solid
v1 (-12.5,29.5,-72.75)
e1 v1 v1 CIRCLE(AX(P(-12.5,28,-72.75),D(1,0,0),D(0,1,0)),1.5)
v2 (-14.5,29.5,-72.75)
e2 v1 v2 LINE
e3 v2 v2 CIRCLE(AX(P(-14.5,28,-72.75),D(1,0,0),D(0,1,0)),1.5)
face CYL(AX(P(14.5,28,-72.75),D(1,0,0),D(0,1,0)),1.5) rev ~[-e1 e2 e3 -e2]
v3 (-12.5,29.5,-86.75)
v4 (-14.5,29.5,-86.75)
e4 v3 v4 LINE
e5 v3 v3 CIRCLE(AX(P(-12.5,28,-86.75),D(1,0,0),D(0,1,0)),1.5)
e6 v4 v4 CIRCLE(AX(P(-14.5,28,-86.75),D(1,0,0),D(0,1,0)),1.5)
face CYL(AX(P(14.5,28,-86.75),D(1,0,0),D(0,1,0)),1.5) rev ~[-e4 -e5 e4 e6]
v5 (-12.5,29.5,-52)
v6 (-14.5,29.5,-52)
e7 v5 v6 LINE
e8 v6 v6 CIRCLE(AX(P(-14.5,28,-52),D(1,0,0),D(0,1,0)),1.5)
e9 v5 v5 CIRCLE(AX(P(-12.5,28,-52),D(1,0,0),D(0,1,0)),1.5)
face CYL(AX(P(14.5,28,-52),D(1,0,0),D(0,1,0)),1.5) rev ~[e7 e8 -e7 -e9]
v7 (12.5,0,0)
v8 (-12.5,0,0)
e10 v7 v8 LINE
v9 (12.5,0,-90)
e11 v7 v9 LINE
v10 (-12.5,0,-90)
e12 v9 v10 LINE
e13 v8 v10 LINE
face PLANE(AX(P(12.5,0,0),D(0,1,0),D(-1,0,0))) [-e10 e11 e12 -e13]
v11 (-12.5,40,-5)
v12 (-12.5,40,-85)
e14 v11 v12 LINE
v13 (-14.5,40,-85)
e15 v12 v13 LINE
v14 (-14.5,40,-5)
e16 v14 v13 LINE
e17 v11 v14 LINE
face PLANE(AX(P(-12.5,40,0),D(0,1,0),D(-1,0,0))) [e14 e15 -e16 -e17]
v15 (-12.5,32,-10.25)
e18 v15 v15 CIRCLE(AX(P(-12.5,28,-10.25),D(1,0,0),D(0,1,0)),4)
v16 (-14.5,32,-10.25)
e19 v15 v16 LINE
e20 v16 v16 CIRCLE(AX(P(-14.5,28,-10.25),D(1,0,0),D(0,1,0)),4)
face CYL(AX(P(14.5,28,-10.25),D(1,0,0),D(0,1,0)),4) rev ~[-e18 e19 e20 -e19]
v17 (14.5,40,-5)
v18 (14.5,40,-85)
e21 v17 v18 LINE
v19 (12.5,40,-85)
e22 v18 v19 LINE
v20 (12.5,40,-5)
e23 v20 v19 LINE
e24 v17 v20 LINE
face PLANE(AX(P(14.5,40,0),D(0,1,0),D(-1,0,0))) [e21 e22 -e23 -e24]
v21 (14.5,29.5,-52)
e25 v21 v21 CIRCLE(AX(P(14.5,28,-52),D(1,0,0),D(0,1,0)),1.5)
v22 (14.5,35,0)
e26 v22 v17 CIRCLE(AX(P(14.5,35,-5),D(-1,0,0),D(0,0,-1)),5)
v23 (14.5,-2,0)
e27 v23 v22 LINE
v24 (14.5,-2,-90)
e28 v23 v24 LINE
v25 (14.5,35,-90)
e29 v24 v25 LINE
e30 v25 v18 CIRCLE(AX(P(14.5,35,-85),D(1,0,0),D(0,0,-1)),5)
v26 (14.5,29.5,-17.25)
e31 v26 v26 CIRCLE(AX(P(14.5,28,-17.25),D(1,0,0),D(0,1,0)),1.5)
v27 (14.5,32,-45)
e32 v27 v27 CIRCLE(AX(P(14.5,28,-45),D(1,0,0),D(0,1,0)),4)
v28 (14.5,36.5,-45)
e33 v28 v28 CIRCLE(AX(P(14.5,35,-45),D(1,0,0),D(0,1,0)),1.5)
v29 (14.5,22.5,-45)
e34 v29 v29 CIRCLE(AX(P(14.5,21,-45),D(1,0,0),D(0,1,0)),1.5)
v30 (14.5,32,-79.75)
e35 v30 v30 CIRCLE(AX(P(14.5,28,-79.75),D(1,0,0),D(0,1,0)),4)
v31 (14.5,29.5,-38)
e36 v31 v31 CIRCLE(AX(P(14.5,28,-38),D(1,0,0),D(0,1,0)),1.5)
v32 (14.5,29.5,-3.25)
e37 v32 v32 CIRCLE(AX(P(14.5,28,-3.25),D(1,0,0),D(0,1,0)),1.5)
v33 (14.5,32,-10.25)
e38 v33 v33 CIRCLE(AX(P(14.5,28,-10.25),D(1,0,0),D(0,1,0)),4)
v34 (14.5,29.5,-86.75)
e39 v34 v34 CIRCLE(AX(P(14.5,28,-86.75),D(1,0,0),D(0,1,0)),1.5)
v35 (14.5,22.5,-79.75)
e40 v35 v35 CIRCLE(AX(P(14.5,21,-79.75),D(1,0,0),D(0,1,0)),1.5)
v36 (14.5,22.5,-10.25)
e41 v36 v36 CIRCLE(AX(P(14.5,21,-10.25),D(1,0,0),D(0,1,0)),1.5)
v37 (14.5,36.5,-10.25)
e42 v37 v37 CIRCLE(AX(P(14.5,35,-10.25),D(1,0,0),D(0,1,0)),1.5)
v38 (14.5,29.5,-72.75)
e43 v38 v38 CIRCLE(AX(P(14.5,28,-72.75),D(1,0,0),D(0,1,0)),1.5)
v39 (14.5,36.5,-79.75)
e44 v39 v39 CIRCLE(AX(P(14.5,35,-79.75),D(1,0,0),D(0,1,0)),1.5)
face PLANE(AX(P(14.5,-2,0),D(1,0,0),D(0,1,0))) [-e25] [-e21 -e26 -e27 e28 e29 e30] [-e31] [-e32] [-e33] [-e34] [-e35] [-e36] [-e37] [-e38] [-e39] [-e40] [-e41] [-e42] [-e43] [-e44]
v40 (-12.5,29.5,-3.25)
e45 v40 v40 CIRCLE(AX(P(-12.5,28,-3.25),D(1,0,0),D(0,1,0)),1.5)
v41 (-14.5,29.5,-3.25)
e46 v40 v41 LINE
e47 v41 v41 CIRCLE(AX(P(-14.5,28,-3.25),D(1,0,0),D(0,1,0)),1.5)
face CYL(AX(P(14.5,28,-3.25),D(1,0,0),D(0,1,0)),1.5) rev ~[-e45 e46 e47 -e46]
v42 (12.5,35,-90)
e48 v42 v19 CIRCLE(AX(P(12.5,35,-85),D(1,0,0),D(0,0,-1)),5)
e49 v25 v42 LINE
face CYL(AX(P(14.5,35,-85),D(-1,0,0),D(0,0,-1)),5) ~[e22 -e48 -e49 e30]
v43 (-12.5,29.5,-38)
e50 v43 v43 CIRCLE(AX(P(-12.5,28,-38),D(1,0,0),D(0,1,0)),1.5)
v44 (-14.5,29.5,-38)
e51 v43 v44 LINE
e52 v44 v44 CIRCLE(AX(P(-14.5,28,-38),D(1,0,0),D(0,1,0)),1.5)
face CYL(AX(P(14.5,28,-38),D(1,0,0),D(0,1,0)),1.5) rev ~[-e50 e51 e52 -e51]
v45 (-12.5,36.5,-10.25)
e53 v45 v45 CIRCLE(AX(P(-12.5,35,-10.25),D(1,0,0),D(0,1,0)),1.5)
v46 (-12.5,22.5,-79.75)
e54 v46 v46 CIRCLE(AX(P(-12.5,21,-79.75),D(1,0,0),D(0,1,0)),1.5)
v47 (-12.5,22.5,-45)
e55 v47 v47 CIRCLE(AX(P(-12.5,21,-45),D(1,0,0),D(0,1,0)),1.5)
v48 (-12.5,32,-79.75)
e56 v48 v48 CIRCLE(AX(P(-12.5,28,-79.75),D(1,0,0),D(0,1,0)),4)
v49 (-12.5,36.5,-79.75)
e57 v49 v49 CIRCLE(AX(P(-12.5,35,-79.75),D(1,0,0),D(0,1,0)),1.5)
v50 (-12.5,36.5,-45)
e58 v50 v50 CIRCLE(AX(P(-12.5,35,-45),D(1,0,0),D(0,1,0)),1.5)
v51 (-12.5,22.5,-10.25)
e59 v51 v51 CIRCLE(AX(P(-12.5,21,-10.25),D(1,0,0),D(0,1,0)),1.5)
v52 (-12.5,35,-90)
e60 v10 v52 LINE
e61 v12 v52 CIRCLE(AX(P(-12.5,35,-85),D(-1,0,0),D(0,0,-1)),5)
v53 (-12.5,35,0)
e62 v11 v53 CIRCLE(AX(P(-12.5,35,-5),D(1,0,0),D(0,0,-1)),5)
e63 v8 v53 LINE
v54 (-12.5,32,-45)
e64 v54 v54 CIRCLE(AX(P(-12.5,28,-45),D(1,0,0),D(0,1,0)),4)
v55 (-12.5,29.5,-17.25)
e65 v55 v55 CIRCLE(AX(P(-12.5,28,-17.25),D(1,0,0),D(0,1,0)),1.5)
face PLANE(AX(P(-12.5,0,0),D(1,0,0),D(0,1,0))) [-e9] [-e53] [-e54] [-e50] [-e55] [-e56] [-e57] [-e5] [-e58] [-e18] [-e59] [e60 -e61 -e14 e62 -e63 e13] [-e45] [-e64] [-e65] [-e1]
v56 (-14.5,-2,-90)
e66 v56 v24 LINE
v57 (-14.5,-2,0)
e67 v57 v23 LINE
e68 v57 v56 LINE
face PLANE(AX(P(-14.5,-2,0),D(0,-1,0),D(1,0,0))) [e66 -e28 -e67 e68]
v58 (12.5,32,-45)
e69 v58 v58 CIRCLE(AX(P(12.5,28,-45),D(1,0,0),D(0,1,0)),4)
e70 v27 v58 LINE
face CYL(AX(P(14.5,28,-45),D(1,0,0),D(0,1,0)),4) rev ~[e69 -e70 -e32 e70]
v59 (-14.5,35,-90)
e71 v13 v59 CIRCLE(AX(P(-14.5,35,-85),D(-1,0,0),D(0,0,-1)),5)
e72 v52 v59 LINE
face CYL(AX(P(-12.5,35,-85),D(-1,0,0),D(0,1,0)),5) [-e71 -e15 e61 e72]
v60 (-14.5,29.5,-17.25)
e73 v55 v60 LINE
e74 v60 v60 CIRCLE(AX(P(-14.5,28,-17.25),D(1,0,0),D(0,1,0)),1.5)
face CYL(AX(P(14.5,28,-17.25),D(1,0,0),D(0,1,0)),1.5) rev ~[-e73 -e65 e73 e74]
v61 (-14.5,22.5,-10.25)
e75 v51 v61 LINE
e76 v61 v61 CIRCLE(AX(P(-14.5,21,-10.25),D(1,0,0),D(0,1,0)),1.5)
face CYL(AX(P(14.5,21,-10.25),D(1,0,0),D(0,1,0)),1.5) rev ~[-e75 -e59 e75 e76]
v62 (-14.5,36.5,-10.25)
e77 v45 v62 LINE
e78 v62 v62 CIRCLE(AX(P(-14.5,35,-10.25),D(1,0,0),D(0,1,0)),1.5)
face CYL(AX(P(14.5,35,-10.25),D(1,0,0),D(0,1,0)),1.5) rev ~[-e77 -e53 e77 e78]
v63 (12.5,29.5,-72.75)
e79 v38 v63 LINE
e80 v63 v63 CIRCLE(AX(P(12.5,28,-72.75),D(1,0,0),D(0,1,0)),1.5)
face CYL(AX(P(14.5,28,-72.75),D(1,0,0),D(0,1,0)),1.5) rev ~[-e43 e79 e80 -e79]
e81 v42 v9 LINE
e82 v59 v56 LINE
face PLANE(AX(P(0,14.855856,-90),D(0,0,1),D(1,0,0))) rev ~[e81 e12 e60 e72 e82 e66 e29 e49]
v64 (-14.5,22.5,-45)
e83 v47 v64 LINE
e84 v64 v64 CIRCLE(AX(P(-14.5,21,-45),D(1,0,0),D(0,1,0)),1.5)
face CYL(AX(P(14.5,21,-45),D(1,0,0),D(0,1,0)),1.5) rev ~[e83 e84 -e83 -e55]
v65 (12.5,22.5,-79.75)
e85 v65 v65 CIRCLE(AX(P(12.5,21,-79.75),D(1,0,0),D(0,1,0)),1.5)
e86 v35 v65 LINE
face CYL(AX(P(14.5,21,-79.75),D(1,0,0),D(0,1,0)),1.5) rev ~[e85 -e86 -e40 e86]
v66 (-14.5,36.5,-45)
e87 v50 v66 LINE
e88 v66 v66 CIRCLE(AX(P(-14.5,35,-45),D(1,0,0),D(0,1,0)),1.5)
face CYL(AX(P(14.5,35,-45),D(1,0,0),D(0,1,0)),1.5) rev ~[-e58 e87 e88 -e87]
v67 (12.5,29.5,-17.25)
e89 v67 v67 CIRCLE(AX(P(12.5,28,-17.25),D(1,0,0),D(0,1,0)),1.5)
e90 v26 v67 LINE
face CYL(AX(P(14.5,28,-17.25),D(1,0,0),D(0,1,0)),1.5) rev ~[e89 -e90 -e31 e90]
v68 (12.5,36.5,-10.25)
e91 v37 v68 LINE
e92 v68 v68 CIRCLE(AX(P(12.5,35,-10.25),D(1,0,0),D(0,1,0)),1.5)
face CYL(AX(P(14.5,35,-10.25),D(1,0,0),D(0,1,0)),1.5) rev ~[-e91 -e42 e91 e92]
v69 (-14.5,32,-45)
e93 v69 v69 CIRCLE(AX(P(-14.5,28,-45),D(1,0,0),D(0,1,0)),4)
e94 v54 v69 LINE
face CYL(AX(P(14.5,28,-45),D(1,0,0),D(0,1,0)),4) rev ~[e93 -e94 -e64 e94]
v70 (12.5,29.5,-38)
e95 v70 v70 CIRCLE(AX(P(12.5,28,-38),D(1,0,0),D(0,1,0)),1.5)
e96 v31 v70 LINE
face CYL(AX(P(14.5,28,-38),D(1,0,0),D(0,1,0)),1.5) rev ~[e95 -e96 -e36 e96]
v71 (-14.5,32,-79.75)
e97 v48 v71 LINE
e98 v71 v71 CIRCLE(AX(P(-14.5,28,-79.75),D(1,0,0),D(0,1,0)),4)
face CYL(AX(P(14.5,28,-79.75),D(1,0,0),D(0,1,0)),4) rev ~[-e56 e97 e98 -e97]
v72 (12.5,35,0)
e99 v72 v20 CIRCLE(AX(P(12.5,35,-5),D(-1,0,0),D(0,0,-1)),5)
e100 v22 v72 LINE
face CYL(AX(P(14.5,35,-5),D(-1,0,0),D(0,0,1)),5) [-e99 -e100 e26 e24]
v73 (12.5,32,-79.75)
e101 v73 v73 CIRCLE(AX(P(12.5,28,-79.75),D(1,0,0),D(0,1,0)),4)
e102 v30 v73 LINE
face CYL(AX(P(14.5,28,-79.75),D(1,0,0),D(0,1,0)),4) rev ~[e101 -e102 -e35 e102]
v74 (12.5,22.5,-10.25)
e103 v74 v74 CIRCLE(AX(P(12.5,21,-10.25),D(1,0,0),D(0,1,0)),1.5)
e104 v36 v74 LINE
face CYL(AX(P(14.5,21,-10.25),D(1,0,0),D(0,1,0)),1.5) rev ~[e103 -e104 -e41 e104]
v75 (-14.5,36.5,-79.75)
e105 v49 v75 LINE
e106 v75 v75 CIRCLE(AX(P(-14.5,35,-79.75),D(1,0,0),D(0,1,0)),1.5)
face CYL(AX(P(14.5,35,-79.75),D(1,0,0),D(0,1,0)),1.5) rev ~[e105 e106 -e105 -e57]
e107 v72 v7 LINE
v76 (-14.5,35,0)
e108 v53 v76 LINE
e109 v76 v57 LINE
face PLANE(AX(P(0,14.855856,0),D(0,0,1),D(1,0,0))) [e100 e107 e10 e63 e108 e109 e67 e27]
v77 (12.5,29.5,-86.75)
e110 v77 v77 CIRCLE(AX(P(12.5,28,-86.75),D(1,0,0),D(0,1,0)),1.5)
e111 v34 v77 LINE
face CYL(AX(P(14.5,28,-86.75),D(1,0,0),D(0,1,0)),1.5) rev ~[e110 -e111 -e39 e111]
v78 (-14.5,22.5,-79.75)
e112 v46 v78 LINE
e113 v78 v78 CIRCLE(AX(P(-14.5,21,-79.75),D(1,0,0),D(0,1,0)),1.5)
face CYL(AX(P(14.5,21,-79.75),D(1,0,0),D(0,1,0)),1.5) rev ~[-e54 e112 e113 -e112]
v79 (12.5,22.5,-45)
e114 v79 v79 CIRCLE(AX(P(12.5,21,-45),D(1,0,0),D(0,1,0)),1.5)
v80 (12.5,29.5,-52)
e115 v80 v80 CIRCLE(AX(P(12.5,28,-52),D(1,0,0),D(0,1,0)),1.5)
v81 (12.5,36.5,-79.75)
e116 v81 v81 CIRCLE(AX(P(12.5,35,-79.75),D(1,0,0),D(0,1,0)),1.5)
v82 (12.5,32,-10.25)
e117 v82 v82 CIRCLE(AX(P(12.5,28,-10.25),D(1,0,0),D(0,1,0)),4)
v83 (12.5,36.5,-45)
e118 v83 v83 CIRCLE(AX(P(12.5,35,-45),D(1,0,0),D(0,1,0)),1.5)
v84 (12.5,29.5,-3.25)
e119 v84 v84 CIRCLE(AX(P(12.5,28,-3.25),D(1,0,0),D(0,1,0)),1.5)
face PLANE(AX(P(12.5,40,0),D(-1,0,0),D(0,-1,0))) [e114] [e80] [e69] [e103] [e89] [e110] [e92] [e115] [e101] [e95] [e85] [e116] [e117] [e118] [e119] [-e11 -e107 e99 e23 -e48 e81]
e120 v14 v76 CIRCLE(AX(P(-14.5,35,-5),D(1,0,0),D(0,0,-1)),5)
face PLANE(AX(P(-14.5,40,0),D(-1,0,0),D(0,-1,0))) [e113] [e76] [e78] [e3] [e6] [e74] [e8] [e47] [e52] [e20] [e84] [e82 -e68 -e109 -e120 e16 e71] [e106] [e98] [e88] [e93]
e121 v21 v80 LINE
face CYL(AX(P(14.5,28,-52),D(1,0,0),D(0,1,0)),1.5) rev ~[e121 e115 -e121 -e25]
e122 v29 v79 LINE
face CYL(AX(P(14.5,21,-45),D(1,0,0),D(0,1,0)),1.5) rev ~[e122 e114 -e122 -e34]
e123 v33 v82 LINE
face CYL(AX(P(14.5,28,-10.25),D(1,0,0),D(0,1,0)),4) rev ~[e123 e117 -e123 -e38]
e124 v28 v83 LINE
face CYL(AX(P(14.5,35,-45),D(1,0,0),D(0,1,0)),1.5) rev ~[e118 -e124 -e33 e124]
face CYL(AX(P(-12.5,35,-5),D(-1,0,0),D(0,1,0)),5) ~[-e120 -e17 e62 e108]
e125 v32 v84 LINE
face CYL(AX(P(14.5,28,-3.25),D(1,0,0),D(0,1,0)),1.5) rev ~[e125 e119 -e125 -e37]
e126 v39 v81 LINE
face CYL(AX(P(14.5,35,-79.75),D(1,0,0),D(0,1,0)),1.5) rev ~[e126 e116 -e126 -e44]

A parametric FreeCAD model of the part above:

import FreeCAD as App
import Part
import Sketcher

V = App.Vector


def edges_at(feature, points):
    """Names of the edges that pass closest to the given points."""
    edges = feature.Shape.Edges
    near = lambda p: min(range(len(edges)), key=lambda i: edges[i].distToShape(Part.Vertex(*p))[0])
    return sorted({f"Edge{near(p) + 1}" for p in points})


def add_polygon(sketch, points):
    """Adds a closed chain of lines whose ends are joined by coincident constraints."""
    first, n = sketch.GeometryCount, len(points)
    for a, b in zip(points, points[1:] + points[:1]):
        sketch.addGeometry(Part.LineSegment(App.Vector(*a, 0), App.Vector(*b, 0)), False)
    for i in range(n):
        sketch.addConstraint(Sketcher.Constraint("Coincident", first + i, 2, first + (i + 1) % n, 1))

doc = App.newDocument("Part")
params = doc.addObject("Spreadsheet::Sheet", "Params")
for row, (alias, value) in enumerate([
    ("sketch1_width", "29 mm"),
    ("sketch1_width2", "2 mm"),
    ("sketch1_height", "42 mm"),
    ("sketch1_height2", "40 mm"),
    ("pad1_length", "90 mm"),
    ("sketch2_diameter", "8 mm"),
    ("sketch2_diameter2", "3 mm"),
    ("pocket1_length", "90 mm"),
    ("fillet_radius", "5 mm"),
], start=1):
    params.set(f"A{row}", alias)
    params.set(f"B{row}", "=" + value)
    params.setAlias(f"B{row}", alias)

body = doc.addObject("PartDesign::Body", "Body")

# Sketch on XY plane
sketch1 = doc.addObject("Sketcher::SketchObject", "Sketch")
body.addObject(sketch1)
sketch1.AttachmentSupport = (doc.XY_Plane, [""])
sketch1.MapMode = "FlatFace"
add_polygon(sketch1, [(-14.5, 40), (-14.5, -2), (14.5, -2), (14.5, 40), (12.5, 40), (12.5, 0), (-12.5, 0), (-12.5, 40)])  # lines 0-7
sketch1.addConstraint([
    Sketcher.Constraint("Vertical", 0),
    Sketcher.Constraint("Horizontal", 1),
    Sketcher.Constraint("Vertical", 2),
    Sketcher.Constraint("Horizontal", 3),
    Sketcher.Constraint("Vertical", 4),
    Sketcher.Constraint("Horizontal", 5),
    Sketcher.Constraint("Vertical", 6),
    Sketcher.Constraint("Horizontal", 7),
    Sketcher.Constraint("Symmetric", 4, 2, 5, 2, -1, 1),
    Sketcher.Constraint("Symmetric", 2, 2, 7, 2, -2),
    Sketcher.Constraint("DistanceX", 1, 1, 1, 2, 29.0),
    Sketcher.Constraint("DistanceX", 3, 2, 3, 1, 2.0),
    Sketcher.Constraint("DistanceY", 0, 2, 0, 1, 42.0),
    Sketcher.Constraint("DistanceY", 4, 2, 4, 1, 40.0),
])
sketch1.setExpression("Constraints[18]", "Params.sketch1_width")
sketch1.setExpression("Constraints[19]", "Params.sketch1_width2")
sketch1.setExpression("Constraints[20]", "Params.sketch1_height")
sketch1.setExpression("Constraints[21]", "Params.sketch1_height2")
pad1 = doc.addObject("PartDesign::Pad", "Pad")
body.addObject(pad1)
pad1.Profile = sketch1
pad1.setExpression("Length", "Params.pad1_length")
pad1.Reversed = True

# Sketch on YZ plane
sketch2 = doc.addObject("Sketcher::SketchObject", "Sketch001")
body.addObject(sketch2)
sketch2.AttachmentSupport = (doc.YZ_Plane, [""])
sketch2.MapMode = "FlatFace"
sketch2.AttachmentOffset = App.Placement(V(0, 0, 14.5), App.Rotation())
sketch2.addGeometry([
    Part.Circle(V(28, -79.8, 0), V(0, 0, 1), 4),  # 0
    Part.Circle(V(35, -79.8, 0), V(0, 0, 1), 1.5),  # 1
    Part.Circle(V(28, -86.8, 0), V(0, 0, 1), 1.5),  # 2
    Part.Circle(V(21, -79.8, 0), V(0, 0, 1), 1.5),  # 3
    Part.Circle(V(28, -72.8, 0), V(0, 0, 1), 1.5),  # 4
    Part.Circle(V(21, -10.2, 0), V(0, 0, 1), 1.5),  # 5
    Part.Circle(V(28, -3.2, 0), V(0, 0, 1), 1.5),  # 6
    Part.Circle(V(35, -10.2, 0), V(0, 0, 1), 1.5),  # 7
    Part.Circle(V(28, -10.2, 0), V(0, 0, 1), 4),  # 8
    Part.Circle(V(28, -17.2, 0), V(0, 0, 1), 1.5),  # 9
    Part.Circle(V(28, -45, 0), V(0, 0, 1), 4),  # 10
    Part.Circle(V(35, -45, 0), V(0, 0, 1), 1.5),  # 11
    Part.Circle(V(28, -52, 0), V(0, 0, 1), 1.5),  # 12
    Part.Circle(V(21, -45, 0), V(0, 0, 1), 1.5),  # 13
    Part.Circle(V(28, -38, 0), V(0, 0, 1), 1.5),  # 14
], False)
sketch2.addConstraint([
    Sketcher.Constraint("Equal", 1, 2),
    Sketcher.Constraint("Equal", 2, 3),
    Sketcher.Constraint("Equal", 3, 4),
    Sketcher.Constraint("Equal", 4, 5),
    Sketcher.Constraint("Equal", 5, 6),
    Sketcher.Constraint("Equal", 6, 7),
    Sketcher.Constraint("Equal", 0, 8),
    Sketcher.Constraint("Equal", 7, 9),
    Sketcher.Constraint("Equal", 8, 10),
    Sketcher.Constraint("Equal", 9, 11),
    Sketcher.Constraint("Equal", 11, 12),
    Sketcher.Constraint("Equal", 12, 13),
    Sketcher.Constraint("Equal", 13, 14),
    Sketcher.Constraint("Horizontal", 0, 3, 1, 3),
    Sketcher.Constraint("Horizontal", 1, 3, 3, 3),
    Sketcher.Constraint("Horizontal", 5, 3, 7, 3),
    Sketcher.Constraint("Horizontal", 7, 3, 8, 3),
    Sketcher.Constraint("Horizontal", 10, 3, 11, 3),
    Sketcher.Constraint("Horizontal", 11, 3, 13, 3),
    Sketcher.Constraint("Vertical", 0, 3, 2, 3),
    Sketcher.Constraint("Vertical", 2, 3, 4, 3),
    Sketcher.Constraint("Vertical", 3, 3, 5, 3),
    Sketcher.Constraint("Vertical", 4, 3, 6, 3),
    Sketcher.Constraint("Vertical", 1, 3, 7, 3),
    Sketcher.Constraint("Vertical", 6, 3, 8, 3),
    Sketcher.Constraint("Vertical", 8, 3, 9, 3),
    Sketcher.Constraint("Vertical", 9, 3, 10, 3),
    Sketcher.Constraint("Vertical", 7, 3, 11, 3),
    Sketcher.Constraint("Vertical", 10, 3, 12, 3),
    Sketcher.Constraint("Vertical", 5, 3, 13, 3),
    Sketcher.Constraint("Vertical", 12, 3, 14, 3),
    Sketcher.Constraint("Diameter", 0, 8.0),
    Sketcher.Constraint("Diameter", 1, 3.0),
    Sketcher.Constraint("DistanceX", -1, 1, 0, 3, 28.0),
    Sketcher.Constraint("DistanceX", -1, 1, 1, 3, 35.0),
    Sketcher.Constraint("DistanceX", -1, 1, 3, 3, 21.0),
    Sketcher.Constraint("DistanceY", 10, 3, -1, 1, 45.0),
    Sketcher.Constraint("DistanceY", 12, 3, -1, 1, 52.0),
    Sketcher.Constraint("DistanceY", 14, 3, -1, 1, 38.0),
    Sketcher.Constraint("DistanceY", 2, 3, 0, 3, 7.0),
    Sketcher.Constraint("DistanceY", 0, 3, 4, 3, 7.0),
    Sketcher.Constraint("DistanceY", 5, 3, 6, 3, 7.0),
    Sketcher.Constraint("DistanceY", 9, 3, 8, 3, 7.0),
    Sketcher.Constraint("DistanceY", 4, 3, 5, 3, 62.5),
    Sketcher.Constraint("DistanceY", 0, 3, -1, 1, 79.75),
])
sketch2.setExpression("Constraints[31]", "Params.sketch2_diameter")
sketch2.setExpression("Constraints[32]", "Params.sketch2_diameter2")
pocket1 = doc.addObject("PartDesign::Pocket", "Pocket")
body.addObject(pocket1)
pocket1.Profile = sketch2
pocket1.setExpression("Length", "Params.pocket1_length")
doc.recompute()

fillet = doc.addObject("PartDesign::Fillet", "Fillet")
body.addObject(fillet)
fillet.Base = (pocket1, edges_at(pocket1, [
    (-13.5, 40, 0),
    (13.5, 40, -90),
    (-13.5, 40, -90),
    (13.5, 40, 0),
]))
fillet.setExpression("Radius", "Params.fillet_radius")

doc.recompute()
